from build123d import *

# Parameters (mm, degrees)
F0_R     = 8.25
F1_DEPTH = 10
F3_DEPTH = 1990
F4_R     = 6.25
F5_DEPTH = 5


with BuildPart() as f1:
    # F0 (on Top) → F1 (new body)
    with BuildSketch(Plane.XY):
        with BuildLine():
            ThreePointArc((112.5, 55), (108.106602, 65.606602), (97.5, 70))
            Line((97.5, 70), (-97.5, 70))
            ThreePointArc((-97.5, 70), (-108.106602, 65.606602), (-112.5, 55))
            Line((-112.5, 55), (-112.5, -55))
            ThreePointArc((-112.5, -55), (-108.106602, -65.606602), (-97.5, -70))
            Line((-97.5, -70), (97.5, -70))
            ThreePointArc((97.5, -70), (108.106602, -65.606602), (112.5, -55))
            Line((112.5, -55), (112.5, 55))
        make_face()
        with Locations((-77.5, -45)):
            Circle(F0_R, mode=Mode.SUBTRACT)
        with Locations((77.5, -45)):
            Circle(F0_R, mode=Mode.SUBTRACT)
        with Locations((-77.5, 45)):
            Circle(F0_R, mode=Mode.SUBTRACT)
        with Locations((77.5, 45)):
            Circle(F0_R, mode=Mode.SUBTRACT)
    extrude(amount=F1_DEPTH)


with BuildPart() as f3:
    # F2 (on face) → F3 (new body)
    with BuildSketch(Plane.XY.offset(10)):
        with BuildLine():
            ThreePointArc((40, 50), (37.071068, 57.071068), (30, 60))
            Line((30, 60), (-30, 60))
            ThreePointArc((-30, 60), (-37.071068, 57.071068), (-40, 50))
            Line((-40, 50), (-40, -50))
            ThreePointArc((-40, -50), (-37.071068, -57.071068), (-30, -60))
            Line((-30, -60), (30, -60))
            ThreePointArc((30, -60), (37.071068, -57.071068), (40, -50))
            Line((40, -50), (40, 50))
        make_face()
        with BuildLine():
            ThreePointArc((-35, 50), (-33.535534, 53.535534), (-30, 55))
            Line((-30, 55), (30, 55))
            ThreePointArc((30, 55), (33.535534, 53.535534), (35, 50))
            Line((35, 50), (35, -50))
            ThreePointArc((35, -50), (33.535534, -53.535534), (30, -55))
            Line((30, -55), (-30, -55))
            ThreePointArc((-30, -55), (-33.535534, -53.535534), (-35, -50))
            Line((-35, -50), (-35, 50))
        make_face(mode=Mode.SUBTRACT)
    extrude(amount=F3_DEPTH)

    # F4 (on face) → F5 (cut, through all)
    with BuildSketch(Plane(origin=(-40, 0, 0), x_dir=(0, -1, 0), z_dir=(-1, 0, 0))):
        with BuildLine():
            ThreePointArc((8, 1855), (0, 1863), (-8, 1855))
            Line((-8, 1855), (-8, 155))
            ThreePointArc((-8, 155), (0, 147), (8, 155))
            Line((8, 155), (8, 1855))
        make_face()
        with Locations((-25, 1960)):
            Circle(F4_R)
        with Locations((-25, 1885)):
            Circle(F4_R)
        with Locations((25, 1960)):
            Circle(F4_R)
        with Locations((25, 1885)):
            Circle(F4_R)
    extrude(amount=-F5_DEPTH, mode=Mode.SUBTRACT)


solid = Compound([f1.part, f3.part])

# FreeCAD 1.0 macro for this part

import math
import FreeCAD as App
import Part
import Sketcher
Q = App.Units.Quantity

doc = App.newDocument("Part")
body = doc.addObject("PartDesign::Body", "Body")

# Sketch on XY plane
sketch1 = doc.addObject("Sketcher::SketchObject", "Sketch")
body.addObject(sketch1)
sketch1.AttachmentSupport = (doc.XY_Plane, [""])
sketch1.MapMode = "FlatFace"
sketch1.addGeometry([
    Part.ArcOfCircle(Part.Circle(App.Vector(98, 55, 0), App.Vector(0, 0, 1), 15), math.radians(0), math.radians(90)),  # 0
    Part.LineSegment(App.Vector(98, 70, 0), App.Vector(-98, 70, 0)),  # 1
    Part.ArcOfCircle(Part.Circle(App.Vector(-98, 55, 0), App.Vector(0, 0, 1), 15), math.radians(90), math.radians(180)),  # 2
    Part.LineSegment(App.Vector(-112, 55, 0), App.Vector(-112, -55, 0)),  # 3
    Part.ArcOfCircle(Part.Circle(App.Vector(-98, -55, 0), App.Vector(0, 0, 1), 15), math.radians(180), math.radians(270)),  # 4
    Part.LineSegment(App.Vector(-98, -70, 0), App.Vector(98, -70, 0)),  # 5
    Part.ArcOfCircle(Part.Circle(App.Vector(98, -55, 0), App.Vector(0, 0, 1), 15), math.radians(-90), math.radians(0)),  # 6
    Part.LineSegment(App.Vector(112, -55, 0), App.Vector(112, 55, 0)),  # 7
    Part.Circle(App.Vector(-78, -45, 0), App.Vector(0, 0, 1), 8),  # 8
    Part.Circle(App.Vector(78, -45, 0), App.Vector(0, 0, 1), 8),  # 9
    Part.Circle(App.Vector(-78, 45, 0), App.Vector(0, 0, 1), 8),  # 10
    Part.Circle(App.Vector(78, 45, 0), App.Vector(0, 0, 1), 8),  # 11
], False)
sketch1.addConstraint([
    Sketcher.Constraint("Tangent", 0, 2, 1, 1),
    Sketcher.Constraint("Tangent", 1, 2, 2, 1),
    Sketcher.Constraint("Tangent", 2, 2, 3, 1),
    Sketcher.Constraint("Tangent", 3, 2, 4, 1),
    Sketcher.Constraint("Tangent", 4, 2, 5, 1),
    Sketcher.Constraint("Tangent", 5, 2, 6, 1),
    Sketcher.Constraint("Tangent", 6, 2, 7, 1),
    Sketcher.Constraint("Tangent", 7, 2, 0, 1),
    Sketcher.Constraint("Horizontal", 1),
    Sketcher.Constraint("Vertical", 3),
    Sketcher.Constraint("Horizontal", 5),
    Sketcher.Constraint("Vertical", 7),
    Sketcher.Constraint("Equal", 0, 2),
    Sketcher.Constraint("Equal", 2, 4),
    Sketcher.Constraint("Equal", 4, 6),
    Sketcher.Constraint("Equal", 8, 9),
    Sketcher.Constraint("Equal", 9, 10),
    Sketcher.Constraint("Equal", 10, 11),
    Sketcher.Constraint("Symmetric", 0, 3, 4, 3, -1, 1),
    Sketcher.Constraint("Symmetric", 9, 3, 10, 3, -1, 1),
    Sketcher.Constraint("Symmetric", 8, 3, 11, 3, -1, 1),
    Sketcher.Constraint("Symmetric", 8, 3, 9, 3, -2),
    Sketcher.Constraint("Radius", 0, Q("14.999999 mm")),
    Sketcher.Constraint("Diameter", 8, Q("16.5 mm")),
    Sketcher.Constraint("DistanceX", 1, 2, 1, 1, Q("195 mm")),
    Sketcher.Constraint("DistanceY", 3, 2, 3, 1, Q("110 mm")),
    Sketcher.Constraint("DistanceY", 8, 3, -1, 1, Q("45 mm")),
    Sketcher.Constraint("DistanceX", 4, 3, 8, 3, Q("20.000001 mm")),
])
pad1 = doc.addObject("PartDesign::Pad", "Pad")
body.addObject(pad1)
pad1.Profile = sketch1
pad1.Length = 10
body2 = doc.addObject("PartDesign::Body", "Body001")

# Sketch on XY plane
sketch2 = doc.addObject("Sketcher::SketchObject", "Sketch001")
body2.addObject(sketch2)
sketch2.AttachmentSupport = (doc.getObject("XY_Plane001"), [""])
sketch2.MapMode = "FlatFace"
sketch2.AttachmentOffset = App.Placement(App.Vector(0, 0, 10), App.Rotation())
sketch2.addGeometry([
    Part.ArcOfCircle(Part.Circle(App.Vector(30, 50, 0), App.Vector(0, 0, 1), 10), math.radians(0), math.radians(90)),  # 0
    Part.LineSegment(App.Vector(30, 60, 0), App.Vector(-30, 60, 0)),  # 1
    Part.ArcOfCircle(Part.Circle(App.Vector(-30, 50, 0), App.Vector(0, 0, 1), 10), math.radians(90), math.radians(180)),  # 2
    Part.LineSegment(App.Vector(-40, 50, 0), App.Vector(-40, -50, 0)),  # 3
    Part.ArcOfCircle(Part.Circle(App.Vector(-30, -50, 0), App.Vector(0, 0, 1), 10), math.radians(180), math.radians(270)),  # 4
    Part.LineSegment(App.Vector(-30, -60, 0), App.Vector(30, -60, 0)),  # 5
    Part.ArcOfCircle(Part.Circle(App.Vector(30, -50, 0), App.Vector(0, 0, 1), 10), math.radians(-90), math.radians(0)),  # 6
    Part.LineSegment(App.Vector(40, -50, 0), App.Vector(40, 50, 0)),  # 7
    Part.LineSegment(App.Vector(-35, -50, 0), App.Vector(-35, 50, 0)),  # 8
    Part.ArcOfCircle(Part.Circle(App.Vector(-30, 50, 0), App.Vector(0, 0, 1), 5), math.radians(90), math.radians(180)),  # 9
    Part.LineSegment(App.Vector(-30, 55, 0), App.Vector(30, 55, 0)),  # 10
    Part.ArcOfCircle(Part.Circle(App.Vector(30, 50, 0), App.Vector(0, 0, 1), 5), math.radians(0), math.radians(90)),  # 11
    Part.LineSegment(App.Vector(35, 50, 0), App.Vector(35, -50, 0)),  # 12
    Part.ArcOfCircle(Part.Circle(App.Vector(30, -50, 0), App.Vector(0, 0, 1), 5), math.radians(-90), math.radians(0)),  # 13
    Part.LineSegment(App.Vector(30, -55, 0), App.Vector(-30, -55, 0)),  # 14
    Part.ArcOfCircle(Part.Circle(App.Vector(-30, -50, 0), App.Vector(0, 0, 1), 5), math.radians(180), math.radians(270)),  # 15
], False)
sketch2.addConstraint([
    Sketcher.Constraint("Tangent", 0, 2, 1, 1),
    Sketcher.Constraint("Tangent", 1, 2, 2, 1),
    Sketcher.Constraint("Tangent", 2, 2, 3, 1),
    Sketcher.Constraint("Tangent", 3, 2, 4, 1),
    Sketcher.Constraint("Tangent", 4, 2, 5, 1),
    Sketcher.Constraint("Tangent", 5, 2, 6, 1),
    Sketcher.Constraint("Tangent", 6, 2, 7, 1),
    Sketcher.Constraint("Tangent", 7, 2, 0, 1),
    Sketcher.Constraint("Tangent", 8, 2, 9, 2),
    Sketcher.Constraint("Tangent", 9, 1, 10, 1),
    Sketcher.Constraint("Tangent", 10, 2, 11, 2),
    Sketcher.Constraint("Tangent", 11, 1, 12, 1),
    Sketcher.Constraint("Tangent", 12, 2, 13, 2),
    Sketcher.Constraint("Tangent", 13, 1, 14, 1),
    Sketcher.Constraint("Tangent", 14, 2, 15, 2),
    Sketcher.Constraint("Tangent", 15, 1, 8, 1),
    Sketcher.Constraint("Horizontal", 1),
    Sketcher.Constraint("Vertical", 3),
    Sketcher.Constraint("Horizontal", 5),
    Sketcher.Constraint("Vertical", 7),
    Sketcher.Constraint("Vertical", 8),
    Sketcher.Constraint("Horizontal", 10),
    Sketcher.Constraint("Vertical", 12),
    Sketcher.Constraint("Horizontal", 14),
    Sketcher.Constraint("Coincident", 9, 3, 2, 3),
    Sketcher.Constraint("Coincident", 11, 3, 0, 3),
    Sketcher.Constraint("Coincident", 13, 3, 6, 3),
    Sketcher.Constraint("Equal", 0, 2),
    Sketcher.Constraint("Equal", 2, 4),
    Sketcher.Constraint("Equal", 4, 6),
    Sketcher.Constraint("Equal", 13, 15),
    Sketcher.Constraint("Symmetric", 0, 3, 4, 3, -1, 1),
    Sketcher.Constraint("Radius", 0, Q("9.999999 mm")),
    Sketcher.Constraint("Radius", 9, Q("5 mm")),
    Sketcher.Constraint("DistanceX", 1, 2, 1, 1, Q("60 mm")),
    Sketcher.Constraint("DistanceY", 3, 2, 3, 1, Q("100 mm")),
])
pad2 = doc.addObject("PartDesign::Pad", "Pad001")
body2.addObject(pad2)
pad2.Profile = sketch2
pad2.Length = 1990

# Sketch on YZ plane
sketch3 = doc.addObject("Sketcher::SketchObject", "Sketch002")
body2.addObject(sketch3)
sketch3.AttachmentSupport = (doc.getObject("YZ_Plane001"), [""])
sketch3.MapMode = "FlatFace"
sketch3.AttachmentOffset = App.Placement(App.Vector(0, 0, -40), App.Rotation())
sketch3.addGeometry([
    Part.ArcOfCircle(Part.Circle(App.Vector(0, 1855, 0), App.Vector(0, 0, 1), 8), math.radians(0), math.radians(180)),  # 0
    Part.LineSegment(App.Vector(8, 1855, 0), App.Vector(8, 155, 0)),  # 1
    Part.ArcOfCircle(Part.Circle(App.Vector(0, 155, 0), App.Vector(0, 0, 1), 8), math.radians(180), math.radians(360)),  # 2
    Part.LineSegment(App.Vector(-8, 155, 0), App.Vector(-8, 1855, 0)),  # 3
    Part.Circle(App.Vector(25, 1960, 0), App.Vector(0, 0, 1), 6),  # 4
    Part.Circle(App.Vector(25, 1885, 0), App.Vector(0, 0, 1), 6),  # 5
    Part.Circle(App.Vector(-25, 1960, 0), App.Vector(0, 0, 1), 6),  # 6
    Part.Circle(App.Vector(-25, 1885, 0), App.Vector(0, 0, 1), 6),  # 7
], False)
sketch3.addConstraint([
    Sketcher.Constraint("Tangent", 0, 1, 1, 1),
    Sketcher.Constraint("Tangent", 1, 2, 2, 2),
    Sketcher.Constraint("Tangent", 2, 1, 3, 1),
    Sketcher.Constraint("Tangent", 3, 2, 0, 2),
    Sketcher.Constraint("Vertical", 1),
    Sketcher.Constraint("Vertical", 3),
    Sketcher.Constraint("Equal", 4, 5),
    Sketcher.Constraint("Equal", 5, 6),
    Sketcher.Constraint("Equal", 6, 7),
    Sketcher.Constraint("Symmetric", 4, 3, 6, 3, -2),
    Sketcher.Constraint("Symmetric", 5, 3, 7, 3, -2),
    Sketcher.Constraint("PointOnObject", 0, 3, -2),
    Sketcher.Constraint("Vertical", 4, 3, 5, 3),
    Sketcher.Constraint("Radius", 0, Q("8 mm")),
    Sketcher.Constraint("Diameter", 4, Q("12.5 mm")),
    Sketcher.Constraint("DistanceY", 1, 2, 1, 1, Q("1700 mm")),
    Sketcher.Constraint("DistanceY", -1, 1, 0, 3, Q("1855 mm")),
    Sketcher.Constraint("DistanceX", -1, 1, 4, 3, Q("25 mm")),
    Sketcher.Constraint("DistanceY", -1, 1, 4, 3, Q("1960 mm")),
    Sketcher.Constraint("DistanceY", -1, 1, 5, 3, Q("1885 mm")),
])
pocket1 = doc.addObject("PartDesign::Pocket", "Pocket")
body2.addObject(pocket1)
pocket1.Profile = sketch3
pocket1.Length = 5
pocket1.Reversed = True

doc.recompute()
